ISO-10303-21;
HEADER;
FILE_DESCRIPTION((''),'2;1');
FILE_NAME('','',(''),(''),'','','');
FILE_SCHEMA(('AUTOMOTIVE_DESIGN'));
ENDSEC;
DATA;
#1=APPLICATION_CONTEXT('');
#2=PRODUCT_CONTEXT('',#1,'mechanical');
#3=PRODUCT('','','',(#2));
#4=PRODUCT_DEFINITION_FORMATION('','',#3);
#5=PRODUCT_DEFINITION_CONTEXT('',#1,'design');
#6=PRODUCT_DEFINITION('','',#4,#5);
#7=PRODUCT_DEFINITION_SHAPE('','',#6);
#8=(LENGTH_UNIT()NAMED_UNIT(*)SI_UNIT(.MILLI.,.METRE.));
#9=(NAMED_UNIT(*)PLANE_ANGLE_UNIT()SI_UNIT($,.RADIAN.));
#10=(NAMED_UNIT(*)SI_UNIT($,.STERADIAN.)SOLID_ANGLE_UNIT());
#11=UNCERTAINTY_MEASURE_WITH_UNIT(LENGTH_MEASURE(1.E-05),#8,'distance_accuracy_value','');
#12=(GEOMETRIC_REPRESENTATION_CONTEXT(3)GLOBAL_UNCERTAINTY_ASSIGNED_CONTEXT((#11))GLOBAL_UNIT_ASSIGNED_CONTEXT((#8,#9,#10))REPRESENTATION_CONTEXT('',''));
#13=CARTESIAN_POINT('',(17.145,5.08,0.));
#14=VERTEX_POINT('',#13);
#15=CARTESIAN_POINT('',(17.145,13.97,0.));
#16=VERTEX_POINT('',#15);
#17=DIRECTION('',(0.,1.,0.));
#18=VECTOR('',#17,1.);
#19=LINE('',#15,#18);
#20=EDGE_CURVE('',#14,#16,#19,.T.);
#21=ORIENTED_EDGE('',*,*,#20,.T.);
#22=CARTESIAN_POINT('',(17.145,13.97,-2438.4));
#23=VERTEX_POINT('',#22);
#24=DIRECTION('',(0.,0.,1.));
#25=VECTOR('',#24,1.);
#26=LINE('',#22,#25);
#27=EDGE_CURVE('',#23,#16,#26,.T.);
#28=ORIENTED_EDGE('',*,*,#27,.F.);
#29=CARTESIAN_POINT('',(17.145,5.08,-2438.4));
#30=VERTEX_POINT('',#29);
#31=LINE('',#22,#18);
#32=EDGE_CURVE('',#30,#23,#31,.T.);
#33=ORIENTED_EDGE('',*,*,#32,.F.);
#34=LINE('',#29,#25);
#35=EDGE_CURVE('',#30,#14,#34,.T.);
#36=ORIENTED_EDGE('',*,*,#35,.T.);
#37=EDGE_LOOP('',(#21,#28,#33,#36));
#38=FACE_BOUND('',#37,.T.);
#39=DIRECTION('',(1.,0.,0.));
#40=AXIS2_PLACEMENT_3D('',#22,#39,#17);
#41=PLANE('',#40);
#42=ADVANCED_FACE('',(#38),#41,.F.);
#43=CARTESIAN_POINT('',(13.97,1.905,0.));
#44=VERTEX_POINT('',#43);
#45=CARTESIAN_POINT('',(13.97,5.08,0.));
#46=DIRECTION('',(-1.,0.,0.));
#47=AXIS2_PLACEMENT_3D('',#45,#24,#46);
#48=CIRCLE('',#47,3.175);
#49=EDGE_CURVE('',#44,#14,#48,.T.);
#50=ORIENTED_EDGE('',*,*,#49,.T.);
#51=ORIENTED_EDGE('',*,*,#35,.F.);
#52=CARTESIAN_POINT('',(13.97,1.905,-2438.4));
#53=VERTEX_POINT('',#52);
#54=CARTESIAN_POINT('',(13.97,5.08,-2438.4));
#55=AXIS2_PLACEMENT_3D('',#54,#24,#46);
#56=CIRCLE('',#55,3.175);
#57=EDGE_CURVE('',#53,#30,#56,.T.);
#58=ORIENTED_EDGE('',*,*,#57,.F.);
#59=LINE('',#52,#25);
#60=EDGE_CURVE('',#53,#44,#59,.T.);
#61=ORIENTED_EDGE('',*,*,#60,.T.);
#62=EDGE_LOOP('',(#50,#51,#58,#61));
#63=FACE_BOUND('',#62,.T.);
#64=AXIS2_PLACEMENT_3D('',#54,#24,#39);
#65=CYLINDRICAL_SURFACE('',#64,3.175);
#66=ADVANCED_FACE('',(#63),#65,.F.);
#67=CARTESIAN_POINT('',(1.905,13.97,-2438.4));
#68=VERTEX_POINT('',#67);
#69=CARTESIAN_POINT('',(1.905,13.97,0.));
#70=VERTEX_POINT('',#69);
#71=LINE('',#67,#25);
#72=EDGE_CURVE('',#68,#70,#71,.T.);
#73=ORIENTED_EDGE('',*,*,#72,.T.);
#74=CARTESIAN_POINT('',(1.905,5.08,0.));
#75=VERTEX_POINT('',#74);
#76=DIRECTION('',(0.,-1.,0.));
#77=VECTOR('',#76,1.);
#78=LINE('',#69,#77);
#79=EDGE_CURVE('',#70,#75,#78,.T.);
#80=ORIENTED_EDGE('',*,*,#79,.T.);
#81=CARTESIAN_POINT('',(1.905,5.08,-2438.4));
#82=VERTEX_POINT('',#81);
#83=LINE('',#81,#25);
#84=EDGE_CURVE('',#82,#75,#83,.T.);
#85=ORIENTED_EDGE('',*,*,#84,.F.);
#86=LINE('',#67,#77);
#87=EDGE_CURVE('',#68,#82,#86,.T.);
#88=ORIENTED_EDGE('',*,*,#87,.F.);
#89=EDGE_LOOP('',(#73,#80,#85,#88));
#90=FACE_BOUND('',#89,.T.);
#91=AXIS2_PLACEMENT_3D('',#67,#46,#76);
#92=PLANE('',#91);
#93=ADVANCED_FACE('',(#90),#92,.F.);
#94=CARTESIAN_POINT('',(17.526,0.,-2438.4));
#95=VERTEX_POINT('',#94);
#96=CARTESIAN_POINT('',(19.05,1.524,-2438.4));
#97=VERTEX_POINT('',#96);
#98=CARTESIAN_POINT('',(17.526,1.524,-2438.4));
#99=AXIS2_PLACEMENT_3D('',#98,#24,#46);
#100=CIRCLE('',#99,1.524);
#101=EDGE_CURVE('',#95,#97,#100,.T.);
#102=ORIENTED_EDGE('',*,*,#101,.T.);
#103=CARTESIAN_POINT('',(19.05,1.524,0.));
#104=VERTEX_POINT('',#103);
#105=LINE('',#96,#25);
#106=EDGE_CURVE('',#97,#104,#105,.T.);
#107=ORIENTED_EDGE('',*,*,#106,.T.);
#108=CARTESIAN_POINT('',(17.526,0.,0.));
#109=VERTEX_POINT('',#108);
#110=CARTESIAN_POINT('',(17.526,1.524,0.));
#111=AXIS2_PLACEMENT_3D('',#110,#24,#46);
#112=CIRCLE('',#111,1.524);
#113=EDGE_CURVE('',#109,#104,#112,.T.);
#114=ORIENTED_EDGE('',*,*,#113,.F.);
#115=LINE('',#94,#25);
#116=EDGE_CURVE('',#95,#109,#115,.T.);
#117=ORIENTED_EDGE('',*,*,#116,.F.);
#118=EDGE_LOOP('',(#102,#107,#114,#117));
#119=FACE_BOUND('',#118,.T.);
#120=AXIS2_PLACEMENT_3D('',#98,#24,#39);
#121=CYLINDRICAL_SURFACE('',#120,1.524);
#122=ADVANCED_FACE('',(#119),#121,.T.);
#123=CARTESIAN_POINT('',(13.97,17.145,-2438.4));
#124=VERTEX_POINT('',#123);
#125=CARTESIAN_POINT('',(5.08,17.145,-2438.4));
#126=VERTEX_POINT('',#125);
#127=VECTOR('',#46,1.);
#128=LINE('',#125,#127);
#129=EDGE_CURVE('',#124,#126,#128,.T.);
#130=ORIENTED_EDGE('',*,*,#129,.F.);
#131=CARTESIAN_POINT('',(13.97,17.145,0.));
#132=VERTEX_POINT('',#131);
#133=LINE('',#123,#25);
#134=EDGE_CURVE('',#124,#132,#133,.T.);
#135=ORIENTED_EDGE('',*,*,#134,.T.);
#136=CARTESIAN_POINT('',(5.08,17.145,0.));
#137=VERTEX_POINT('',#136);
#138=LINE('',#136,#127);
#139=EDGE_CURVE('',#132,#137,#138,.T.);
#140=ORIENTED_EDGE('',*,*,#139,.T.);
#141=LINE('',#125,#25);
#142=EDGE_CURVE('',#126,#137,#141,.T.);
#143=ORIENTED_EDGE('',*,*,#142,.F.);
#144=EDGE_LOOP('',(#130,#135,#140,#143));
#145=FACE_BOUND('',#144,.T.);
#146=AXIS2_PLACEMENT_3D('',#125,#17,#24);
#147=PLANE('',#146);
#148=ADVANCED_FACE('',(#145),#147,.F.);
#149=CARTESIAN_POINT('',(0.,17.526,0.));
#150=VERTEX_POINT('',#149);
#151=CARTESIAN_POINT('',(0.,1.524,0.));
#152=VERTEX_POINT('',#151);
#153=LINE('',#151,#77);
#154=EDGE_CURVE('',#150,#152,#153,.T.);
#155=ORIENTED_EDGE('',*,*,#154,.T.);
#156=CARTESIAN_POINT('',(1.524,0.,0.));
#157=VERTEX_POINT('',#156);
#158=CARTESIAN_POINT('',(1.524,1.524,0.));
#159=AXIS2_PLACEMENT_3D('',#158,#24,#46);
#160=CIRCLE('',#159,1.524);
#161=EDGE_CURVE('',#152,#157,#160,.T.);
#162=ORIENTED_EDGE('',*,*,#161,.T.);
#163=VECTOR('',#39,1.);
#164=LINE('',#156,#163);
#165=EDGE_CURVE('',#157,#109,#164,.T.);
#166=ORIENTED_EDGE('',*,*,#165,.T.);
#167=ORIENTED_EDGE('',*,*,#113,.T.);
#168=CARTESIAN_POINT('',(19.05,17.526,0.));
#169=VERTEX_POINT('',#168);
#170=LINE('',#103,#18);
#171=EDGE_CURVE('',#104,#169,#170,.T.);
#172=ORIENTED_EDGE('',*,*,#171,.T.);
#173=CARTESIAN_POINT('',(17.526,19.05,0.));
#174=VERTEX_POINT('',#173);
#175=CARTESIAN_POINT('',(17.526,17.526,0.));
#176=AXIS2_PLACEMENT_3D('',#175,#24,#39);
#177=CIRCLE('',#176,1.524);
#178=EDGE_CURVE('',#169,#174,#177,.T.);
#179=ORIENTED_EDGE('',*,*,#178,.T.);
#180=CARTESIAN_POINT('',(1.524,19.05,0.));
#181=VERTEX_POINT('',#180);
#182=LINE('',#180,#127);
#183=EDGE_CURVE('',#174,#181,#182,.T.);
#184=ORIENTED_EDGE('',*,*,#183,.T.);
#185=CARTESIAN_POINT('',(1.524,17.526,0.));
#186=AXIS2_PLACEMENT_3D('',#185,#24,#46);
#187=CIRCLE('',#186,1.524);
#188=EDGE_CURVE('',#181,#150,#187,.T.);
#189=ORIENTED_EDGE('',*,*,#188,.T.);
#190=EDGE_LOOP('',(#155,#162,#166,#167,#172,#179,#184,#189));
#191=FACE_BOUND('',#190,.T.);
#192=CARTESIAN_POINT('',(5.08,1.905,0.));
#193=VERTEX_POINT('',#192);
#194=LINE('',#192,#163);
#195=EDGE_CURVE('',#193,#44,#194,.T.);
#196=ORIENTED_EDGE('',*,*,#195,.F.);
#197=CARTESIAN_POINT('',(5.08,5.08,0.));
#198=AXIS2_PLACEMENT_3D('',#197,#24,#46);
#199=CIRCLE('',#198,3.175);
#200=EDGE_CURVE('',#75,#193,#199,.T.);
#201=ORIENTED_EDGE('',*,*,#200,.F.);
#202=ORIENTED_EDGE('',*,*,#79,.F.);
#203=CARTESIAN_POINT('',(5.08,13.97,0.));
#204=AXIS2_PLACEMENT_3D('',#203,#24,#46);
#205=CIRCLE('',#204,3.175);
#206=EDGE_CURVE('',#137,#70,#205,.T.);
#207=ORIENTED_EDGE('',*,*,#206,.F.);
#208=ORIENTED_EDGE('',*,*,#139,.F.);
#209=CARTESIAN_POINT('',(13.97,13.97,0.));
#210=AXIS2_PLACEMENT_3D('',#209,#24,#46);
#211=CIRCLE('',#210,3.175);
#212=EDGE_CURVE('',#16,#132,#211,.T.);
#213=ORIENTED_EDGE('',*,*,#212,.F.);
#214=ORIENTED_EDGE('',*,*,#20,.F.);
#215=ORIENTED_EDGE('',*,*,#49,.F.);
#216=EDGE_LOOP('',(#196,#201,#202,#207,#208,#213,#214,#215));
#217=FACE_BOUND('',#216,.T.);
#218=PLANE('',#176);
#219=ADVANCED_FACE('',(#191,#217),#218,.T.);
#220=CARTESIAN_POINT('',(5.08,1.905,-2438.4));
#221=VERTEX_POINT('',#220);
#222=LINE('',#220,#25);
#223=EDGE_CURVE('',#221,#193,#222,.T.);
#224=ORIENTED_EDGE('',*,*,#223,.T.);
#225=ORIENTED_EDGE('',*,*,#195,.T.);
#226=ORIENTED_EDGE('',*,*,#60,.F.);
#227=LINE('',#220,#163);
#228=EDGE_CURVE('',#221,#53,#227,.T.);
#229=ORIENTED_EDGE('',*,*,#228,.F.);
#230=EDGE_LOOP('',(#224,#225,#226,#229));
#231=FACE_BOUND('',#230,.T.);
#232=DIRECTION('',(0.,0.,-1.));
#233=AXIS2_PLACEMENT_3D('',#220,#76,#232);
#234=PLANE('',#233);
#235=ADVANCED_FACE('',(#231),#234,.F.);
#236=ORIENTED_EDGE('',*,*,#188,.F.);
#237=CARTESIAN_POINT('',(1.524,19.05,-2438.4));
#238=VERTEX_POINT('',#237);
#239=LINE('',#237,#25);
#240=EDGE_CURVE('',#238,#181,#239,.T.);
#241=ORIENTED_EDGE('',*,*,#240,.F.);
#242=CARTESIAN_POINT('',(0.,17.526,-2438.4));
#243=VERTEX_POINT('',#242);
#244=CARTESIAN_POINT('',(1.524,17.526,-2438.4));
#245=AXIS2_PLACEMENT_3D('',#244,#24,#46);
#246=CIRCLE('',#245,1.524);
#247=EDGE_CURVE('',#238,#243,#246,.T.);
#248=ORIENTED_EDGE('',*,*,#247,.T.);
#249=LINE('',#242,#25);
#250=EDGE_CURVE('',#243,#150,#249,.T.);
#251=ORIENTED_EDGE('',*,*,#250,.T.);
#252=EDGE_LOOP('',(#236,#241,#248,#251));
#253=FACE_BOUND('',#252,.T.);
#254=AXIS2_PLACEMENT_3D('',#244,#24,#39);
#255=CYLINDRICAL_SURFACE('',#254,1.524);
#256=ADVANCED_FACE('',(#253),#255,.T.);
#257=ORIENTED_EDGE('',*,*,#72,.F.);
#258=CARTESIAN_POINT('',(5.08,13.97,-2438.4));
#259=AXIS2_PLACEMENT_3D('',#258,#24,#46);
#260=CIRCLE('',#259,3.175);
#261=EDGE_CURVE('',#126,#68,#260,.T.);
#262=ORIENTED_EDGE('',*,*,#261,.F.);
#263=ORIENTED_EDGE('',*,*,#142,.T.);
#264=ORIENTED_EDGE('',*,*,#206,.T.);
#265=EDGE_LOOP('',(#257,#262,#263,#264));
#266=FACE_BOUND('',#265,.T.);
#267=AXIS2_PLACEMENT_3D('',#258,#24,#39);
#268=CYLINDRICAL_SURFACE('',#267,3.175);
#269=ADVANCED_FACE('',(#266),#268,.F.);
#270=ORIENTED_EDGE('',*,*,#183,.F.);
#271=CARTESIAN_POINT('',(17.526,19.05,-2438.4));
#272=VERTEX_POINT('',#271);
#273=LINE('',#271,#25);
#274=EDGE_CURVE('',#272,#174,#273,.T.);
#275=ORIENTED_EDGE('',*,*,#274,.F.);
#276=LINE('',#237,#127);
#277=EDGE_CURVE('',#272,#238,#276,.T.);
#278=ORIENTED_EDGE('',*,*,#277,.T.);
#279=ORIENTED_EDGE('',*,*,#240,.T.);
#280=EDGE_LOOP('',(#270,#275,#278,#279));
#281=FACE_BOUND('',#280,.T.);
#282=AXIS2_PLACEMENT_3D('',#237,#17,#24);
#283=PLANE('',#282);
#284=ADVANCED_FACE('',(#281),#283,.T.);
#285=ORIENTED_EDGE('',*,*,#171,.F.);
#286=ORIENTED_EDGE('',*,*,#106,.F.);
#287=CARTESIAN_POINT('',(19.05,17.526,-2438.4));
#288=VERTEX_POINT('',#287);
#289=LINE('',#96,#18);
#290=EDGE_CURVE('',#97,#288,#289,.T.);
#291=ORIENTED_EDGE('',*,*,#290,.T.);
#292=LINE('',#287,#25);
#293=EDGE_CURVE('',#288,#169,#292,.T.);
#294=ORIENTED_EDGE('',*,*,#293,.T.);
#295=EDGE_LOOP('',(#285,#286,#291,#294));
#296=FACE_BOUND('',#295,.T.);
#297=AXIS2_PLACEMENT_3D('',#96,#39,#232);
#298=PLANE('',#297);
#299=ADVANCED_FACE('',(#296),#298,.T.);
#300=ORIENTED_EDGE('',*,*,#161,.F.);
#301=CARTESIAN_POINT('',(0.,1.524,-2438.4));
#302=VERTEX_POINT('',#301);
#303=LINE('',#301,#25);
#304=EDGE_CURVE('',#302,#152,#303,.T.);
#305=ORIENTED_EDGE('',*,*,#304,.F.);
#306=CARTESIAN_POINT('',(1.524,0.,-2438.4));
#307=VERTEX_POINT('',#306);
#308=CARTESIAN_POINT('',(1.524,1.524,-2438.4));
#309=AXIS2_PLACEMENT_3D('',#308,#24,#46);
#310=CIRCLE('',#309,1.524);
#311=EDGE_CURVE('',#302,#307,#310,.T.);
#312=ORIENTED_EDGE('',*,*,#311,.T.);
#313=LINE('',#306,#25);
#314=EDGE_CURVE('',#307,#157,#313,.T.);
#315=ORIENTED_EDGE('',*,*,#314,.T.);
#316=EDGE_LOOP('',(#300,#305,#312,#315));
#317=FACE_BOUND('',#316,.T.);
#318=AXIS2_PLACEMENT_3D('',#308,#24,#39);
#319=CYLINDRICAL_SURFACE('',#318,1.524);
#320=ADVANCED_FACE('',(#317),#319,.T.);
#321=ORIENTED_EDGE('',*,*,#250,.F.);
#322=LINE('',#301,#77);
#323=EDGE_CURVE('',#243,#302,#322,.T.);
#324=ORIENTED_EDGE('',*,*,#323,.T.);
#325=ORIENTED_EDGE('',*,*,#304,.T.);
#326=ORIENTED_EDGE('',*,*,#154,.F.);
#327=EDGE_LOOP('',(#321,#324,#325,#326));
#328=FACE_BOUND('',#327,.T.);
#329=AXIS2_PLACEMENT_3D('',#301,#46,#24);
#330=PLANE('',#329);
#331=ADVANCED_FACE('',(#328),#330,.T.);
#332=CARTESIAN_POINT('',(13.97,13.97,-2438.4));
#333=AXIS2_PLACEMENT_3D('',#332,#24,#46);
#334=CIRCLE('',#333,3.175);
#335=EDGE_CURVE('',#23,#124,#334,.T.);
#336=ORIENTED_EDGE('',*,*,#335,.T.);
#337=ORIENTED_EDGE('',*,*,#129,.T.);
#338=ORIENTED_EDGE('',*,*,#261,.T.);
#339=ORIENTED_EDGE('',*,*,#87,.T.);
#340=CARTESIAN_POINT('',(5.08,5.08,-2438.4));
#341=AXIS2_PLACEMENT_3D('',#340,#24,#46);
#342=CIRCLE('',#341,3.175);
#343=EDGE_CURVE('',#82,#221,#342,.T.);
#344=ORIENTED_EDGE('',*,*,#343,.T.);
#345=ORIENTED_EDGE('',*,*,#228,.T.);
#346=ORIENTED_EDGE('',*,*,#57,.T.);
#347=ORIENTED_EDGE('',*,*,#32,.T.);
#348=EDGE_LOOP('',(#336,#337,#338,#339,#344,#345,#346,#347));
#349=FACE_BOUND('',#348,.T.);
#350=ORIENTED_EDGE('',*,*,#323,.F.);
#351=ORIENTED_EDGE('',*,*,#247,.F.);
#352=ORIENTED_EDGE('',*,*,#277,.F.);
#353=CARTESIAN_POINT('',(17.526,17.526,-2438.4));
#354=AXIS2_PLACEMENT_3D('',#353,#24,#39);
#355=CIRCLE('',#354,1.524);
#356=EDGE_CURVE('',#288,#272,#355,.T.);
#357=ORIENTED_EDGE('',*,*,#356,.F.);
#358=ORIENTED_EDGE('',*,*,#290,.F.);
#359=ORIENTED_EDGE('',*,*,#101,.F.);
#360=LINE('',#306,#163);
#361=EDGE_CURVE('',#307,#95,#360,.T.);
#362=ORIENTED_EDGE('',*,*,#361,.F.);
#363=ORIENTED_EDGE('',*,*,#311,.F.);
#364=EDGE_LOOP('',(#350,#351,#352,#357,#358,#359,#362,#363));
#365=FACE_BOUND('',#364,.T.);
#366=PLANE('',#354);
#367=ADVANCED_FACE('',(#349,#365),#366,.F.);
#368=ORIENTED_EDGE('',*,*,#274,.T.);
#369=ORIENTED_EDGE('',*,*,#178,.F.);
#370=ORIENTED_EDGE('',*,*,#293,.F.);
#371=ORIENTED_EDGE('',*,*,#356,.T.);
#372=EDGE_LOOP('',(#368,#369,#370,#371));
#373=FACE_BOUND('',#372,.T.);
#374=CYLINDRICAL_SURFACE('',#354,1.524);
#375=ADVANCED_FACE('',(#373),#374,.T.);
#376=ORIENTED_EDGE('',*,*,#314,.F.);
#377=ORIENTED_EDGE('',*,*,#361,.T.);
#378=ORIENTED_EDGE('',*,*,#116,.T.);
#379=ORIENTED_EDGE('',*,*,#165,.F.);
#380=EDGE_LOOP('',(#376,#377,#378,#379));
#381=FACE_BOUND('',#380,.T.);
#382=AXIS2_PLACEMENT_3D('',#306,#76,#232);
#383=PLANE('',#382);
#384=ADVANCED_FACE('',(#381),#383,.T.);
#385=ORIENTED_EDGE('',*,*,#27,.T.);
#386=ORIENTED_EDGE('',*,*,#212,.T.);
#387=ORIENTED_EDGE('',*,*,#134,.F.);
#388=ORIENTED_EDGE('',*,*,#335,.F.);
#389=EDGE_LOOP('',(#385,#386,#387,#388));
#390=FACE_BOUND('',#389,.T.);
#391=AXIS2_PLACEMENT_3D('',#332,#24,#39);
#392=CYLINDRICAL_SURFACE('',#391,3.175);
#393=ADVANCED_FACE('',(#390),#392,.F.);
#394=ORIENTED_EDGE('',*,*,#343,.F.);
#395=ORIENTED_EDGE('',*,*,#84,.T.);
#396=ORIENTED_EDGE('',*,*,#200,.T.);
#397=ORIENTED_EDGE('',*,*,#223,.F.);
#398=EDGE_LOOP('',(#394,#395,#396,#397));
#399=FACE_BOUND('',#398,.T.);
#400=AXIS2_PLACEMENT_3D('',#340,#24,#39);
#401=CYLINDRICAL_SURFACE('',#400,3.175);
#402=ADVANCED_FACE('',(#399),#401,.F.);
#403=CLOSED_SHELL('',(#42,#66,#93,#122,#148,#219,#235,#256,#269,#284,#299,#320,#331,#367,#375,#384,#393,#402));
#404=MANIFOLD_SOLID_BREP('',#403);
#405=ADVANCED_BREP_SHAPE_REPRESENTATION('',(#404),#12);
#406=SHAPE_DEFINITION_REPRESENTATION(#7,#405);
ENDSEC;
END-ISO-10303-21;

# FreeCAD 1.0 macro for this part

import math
import FreeCAD as App
import Part
import Sketcher
from FreeCAD import Vector
Q = App.Units.Quantity

doc = App.newDocument("Part")
body = doc.addObject("PartDesign::Body", "Body")

# Sketch on XY plane
sketch1 = body.newObject("Sketcher::SketchObject", "Sketch")
sketch1.AttachmentSupport = (doc.getObject("XY_Plane"), [""])
sketch1.MapMode = "FlatFace"
sketch1.addGeometry([
    Part.LineSegment(Vector(1.524, 0, 0), Vector(17.526, 0, 0)),  # 0
    Part.ArcOfCircle(Part.Circle(Vector(17.526, 1.524, 0), Vector(0, 0, 1), 1.524), math.radians(-90), math.radians(0)),  # 1
    Part.LineSegment(Vector(19.05, 1.524, 0), Vector(19.05, 17.526, 0)),  # 2
    Part.ArcOfCircle(Part.Circle(Vector(17.526, 17.526, 0), Vector(0, 0, 1), 1.524), math.radians(0), math.radians(90)),  # 3
    Part.LineSegment(Vector(17.526, 19.05, 0), Vector(1.524, 19.05, 0)),  # 4
    Part.ArcOfCircle(Part.Circle(Vector(1.524, 17.526, 0), Vector(0, 0, 1), 1.524), math.radians(90), math.radians(180)),  # 5
    Part.LineSegment(Vector(0, 17.526, 0), Vector(0, 1.524, 0)),  # 6
    Part.ArcOfCircle(Part.Circle(Vector(1.524, 1.524, 0), Vector(0, 0, 1), 1.524), math.radians(180), math.radians(270)),  # 7
], False)
sketch1.addConstraint([
    Sketcher.Constraint("Tangent", 0, 2, 1, 1),
    Sketcher.Constraint("Tangent", 1, 2, 2, 1),
    Sketcher.Constraint("Tangent", 2, 2, 3, 1),
    Sketcher.Constraint("Tangent", 3, 2, 4, 1),
    Sketcher.Constraint("Tangent", 4, 2, 5, 1),
    Sketcher.Constraint("Tangent", 5, 2, 6, 1),
    Sketcher.Constraint("Tangent", 6, 2, 7, 1),
    Sketcher.Constraint("Tangent", 7, 2, 0, 1),
    Sketcher.Constraint("Horizontal", 0),
    Sketcher.Constraint("Vertical", 2),
    Sketcher.Constraint("Horizontal", 4),
    Sketcher.Constraint("Vertical", 6),
    Sketcher.Constraint("Equal", 1, 3),
    Sketcher.Constraint("Equal", 3, 5),
    Sketcher.Constraint("Equal", 5, 7),
    Sketcher.Constraint("PointOnObject", 0, 2, -1),
    Sketcher.Constraint("PointOnObject", 5, 2, -2),
    Sketcher.Constraint("Equal", 4, 2),
    Sketcher.Constraint("Radius", 1, Q("0.06 in")),
    Sketcher.Constraint("DistanceX", 0, 1, 0, 2, Q("0.63 in")),
])
pad1 = body.newObject("PartDesign::Pad", "Pad")
pad1.Profile = sketch1
pad1.Length = Q("96 in")
pad1.Reversed = True

# Sketch on XY plane
sketch2 = body.newObject("Sketcher::SketchObject", "Sketch001")
sketch2.AttachmentSupport = (doc.getObject("XY_Plane"), [""])
sketch2.MapMode = "FlatFace"
sketch2.addGeometry([
    Part.LineSegment(Vector(13.97, 17.145, 0), Vector(5.08, 17.145, 0)),  # 0
    Part.ArcOfCircle(Part.Circle(Vector(5.08, 13.97, 0), Vector(0, 0, 1), 3.175), math.radians(90), math.radians(180)),  # 1
    Part.LineSegment(Vector(1.905, 13.97, 0), Vector(1.905, 5.08, 0)),  # 2
    Part.ArcOfCircle(Part.Circle(Vector(5.08, 5.08, 0), Vector(0, 0, 1), 3.175), math.radians(-180), math.radians(-90)),  # 3
    Part.LineSegment(Vector(5.08, 1.905, 0), Vector(13.97, 1.905, 0)),  # 4
    Part.ArcOfCircle(Part.Circle(Vector(13.97, 5.08, 0), Vector(0, 0, 1), 3.175), math.radians(-90), math.radians(0)),  # 5
    Part.LineSegment(Vector(17.145, 5.08, 0), Vector(17.145, 13.97, 0)),  # 6
    Part.ArcOfCircle(Part.Circle(Vector(13.97, 13.97, 0), Vector(0, 0, 1), 3.175), math.radians(0), math.radians(90)),  # 7
], False)
sketch2.addConstraint([
    Sketcher.Constraint("Tangent", 0, 2, 1, 1),
    Sketcher.Constraint("Tangent", 1, 2, 2, 1),
    Sketcher.Constraint("Tangent", 2, 2, 3, 1),
    Sketcher.Constraint("Tangent", 3, 2, 4, 1),
    Sketcher.Constraint("Tangent", 4, 2, 5, 1),
    Sketcher.Constraint("Tangent", 5, 2, 6, 1),
    Sketcher.Constraint("Tangent", 6, 2, 7, 1),
    Sketcher.Constraint("Tangent", 7, 2, 0, 1),
    Sketcher.Constraint("Horizontal", 0),
    Sketcher.Constraint("Vertical", 2),
    Sketcher.Constraint("Horizontal", 4),
    Sketcher.Constraint("Vertical", 6),
    Sketcher.Constraint("Equal", 1, 3),
    Sketcher.Constraint("Equal", 3, 5),
    Sketcher.Constraint("Equal", 5, 7),
    Sketcher.Constraint("Equal", 4, 2),
    Sketcher.Constraint("Radius", 1, Q("0.125 in")),
    Sketcher.Constraint("DistanceX", 0, 2, 0, 1, Q("0.35 in")),
    Sketcher.Constraint("DistanceX", -1, 1, 1, 3, Q("0.2 in")),
    Sketcher.Constraint("DistanceY", -1, 1, 3, 3, Q("0.2 in")),
])
pocket1 = body.newObject("PartDesign::Pocket", "Pocket")
pocket1.Profile = sketch2
pocket1.Type = "ThroughAll"

doc.recompute()
